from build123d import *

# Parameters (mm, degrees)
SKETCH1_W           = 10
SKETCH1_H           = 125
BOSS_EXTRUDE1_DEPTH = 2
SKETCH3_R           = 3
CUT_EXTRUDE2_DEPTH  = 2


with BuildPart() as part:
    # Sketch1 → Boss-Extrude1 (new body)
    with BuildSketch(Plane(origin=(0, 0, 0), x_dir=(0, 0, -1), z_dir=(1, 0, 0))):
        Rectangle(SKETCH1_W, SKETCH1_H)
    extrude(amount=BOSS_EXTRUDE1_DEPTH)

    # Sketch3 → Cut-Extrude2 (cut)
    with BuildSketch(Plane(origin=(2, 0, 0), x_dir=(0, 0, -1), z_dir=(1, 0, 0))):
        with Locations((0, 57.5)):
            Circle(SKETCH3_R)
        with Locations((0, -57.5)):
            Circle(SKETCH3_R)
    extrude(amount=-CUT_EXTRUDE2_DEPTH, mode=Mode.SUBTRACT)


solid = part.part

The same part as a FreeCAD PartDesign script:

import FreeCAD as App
import Part
import Sketcher
from FreeCAD import Vector
Q = App.Units.Quantity


def add_polygon(sketch, points):
    """Adds a closed chain of lines whose ends are joined by coincident constraints."""
    first, n = sketch.GeometryCount, len(points)
    for a, b in zip(points, points[1:] + points[:1]):
        sketch.addGeometry(Part.LineSegment(App.Vector(*a, 0), App.Vector(*b, 0)), False)
    for i in range(n):
        sketch.addConstraint(Sketcher.Constraint("Coincident", first + i, 2, first + (i + 1) % n, 1))

doc = App.newDocument("Part")
params = doc.addObject("Spreadsheet::Sheet", "Params")
for row, (alias, value) in enumerate([
    ("sketch1_width", "125 mm"),
    ("sketch1_height", "10 mm"),
    ("pad1_length", "2 mm"),
    ("sketch2_diameter", "6 mm"),
    ("pocket1_length", "2 mm"),
], start=1):
    params.set(f"A{row}", alias)
    params.set(f"B{row}", "=" + value)
    params.setAlias(f"B{row}", alias)

body = doc.addObject("PartDesign::Body", "Body")

# Sketch on YZ plane
sketch1 = doc.addObject("Sketcher::SketchObject", "Sketch")
body.addObject(sketch1)
sketch1.AttachmentSupport = (doc.YZ_Plane, [""])
sketch1.MapMode = "FlatFace"
add_polygon(sketch1, [(62.5, 5), (-62.5, 5), (-62.5, -5), (62.5, -5)])  # lines 0-3
sketch1.addConstraint(Sketcher.Constraint("Horizontal", 0))
sketch1.addConstraint(Sketcher.Constraint("Vertical", 1))
sketch1.addConstraint(Sketcher.Constraint("Horizontal", 2))
sketch1.addConstraint(Sketcher.Constraint("Vertical", 3))
sketch1.addConstraint(Sketcher.Constraint("Symmetric", 0, 2, 2, 2, -1, 1))
sketch1.addConstraint(Sketcher.Constraint("DistanceX", 0, 2, 0, 1, Q("125 mm")))
sketch1.addConstraint(Sketcher.Constraint("DistanceY", 1, 2, 1, 1, Q("10 mm")))
sketch1.setExpression("Constraints[9]", "Params.sketch1_width")
sketch1.setExpression("Constraints[10]", "Params.sketch1_height")
pad1 = doc.addObject("PartDesign::Pad", "Pad")
body.addObject(pad1)
pad1.Profile = sketch1
pad1.setExpression("Length", "Params.pad1_length")

# Sketch on YZ plane
sketch2 = doc.addObject("Sketcher::SketchObject", "Sketch001")
body.addObject(sketch2)
sketch2.AttachmentSupport = (doc.YZ_Plane, [""])
sketch2.MapMode = "FlatFace"
sketch2.AttachmentOffset = App.Placement(Vector(0, 0, 2), App.Rotation())
sketch2.addGeometry(Part.Circle(Vector(57.5, 0, 0), Vector(0, 0, 1), 3), False)
sketch2.addGeometry(Part.Circle(Vector(-57.5, 0, 0), Vector(0, 0, 1), 3), False)
sketch2.addConstraint(Sketcher.Constraint("Equal", 0, 1))
sketch2.addConstraint(Sketcher.Constraint("Symmetric", 0, 3, 1, 3, -1, 1))
sketch2.addConstraint(Sketcher.Constraint("PointOnObject", 0, 3, -1))
sketch2.addConstraint(Sketcher.Constraint("Diameter", 0, Q("6 mm")))
sketch2.addConstraint(Sketcher.Constraint("DistanceX", 1, 3, 0, 3, Q("115 mm")))
sketch2.setExpression("Constraints[3]", "Params.sketch2_diameter")
pocket1 = doc.addObject("PartDesign::Pocket", "Pocket")
body.addObject(pocket1)
pocket1.Profile = sketch2
pocket1.setExpression("Length", "Params.pocket1_length")

doc.recompute()
